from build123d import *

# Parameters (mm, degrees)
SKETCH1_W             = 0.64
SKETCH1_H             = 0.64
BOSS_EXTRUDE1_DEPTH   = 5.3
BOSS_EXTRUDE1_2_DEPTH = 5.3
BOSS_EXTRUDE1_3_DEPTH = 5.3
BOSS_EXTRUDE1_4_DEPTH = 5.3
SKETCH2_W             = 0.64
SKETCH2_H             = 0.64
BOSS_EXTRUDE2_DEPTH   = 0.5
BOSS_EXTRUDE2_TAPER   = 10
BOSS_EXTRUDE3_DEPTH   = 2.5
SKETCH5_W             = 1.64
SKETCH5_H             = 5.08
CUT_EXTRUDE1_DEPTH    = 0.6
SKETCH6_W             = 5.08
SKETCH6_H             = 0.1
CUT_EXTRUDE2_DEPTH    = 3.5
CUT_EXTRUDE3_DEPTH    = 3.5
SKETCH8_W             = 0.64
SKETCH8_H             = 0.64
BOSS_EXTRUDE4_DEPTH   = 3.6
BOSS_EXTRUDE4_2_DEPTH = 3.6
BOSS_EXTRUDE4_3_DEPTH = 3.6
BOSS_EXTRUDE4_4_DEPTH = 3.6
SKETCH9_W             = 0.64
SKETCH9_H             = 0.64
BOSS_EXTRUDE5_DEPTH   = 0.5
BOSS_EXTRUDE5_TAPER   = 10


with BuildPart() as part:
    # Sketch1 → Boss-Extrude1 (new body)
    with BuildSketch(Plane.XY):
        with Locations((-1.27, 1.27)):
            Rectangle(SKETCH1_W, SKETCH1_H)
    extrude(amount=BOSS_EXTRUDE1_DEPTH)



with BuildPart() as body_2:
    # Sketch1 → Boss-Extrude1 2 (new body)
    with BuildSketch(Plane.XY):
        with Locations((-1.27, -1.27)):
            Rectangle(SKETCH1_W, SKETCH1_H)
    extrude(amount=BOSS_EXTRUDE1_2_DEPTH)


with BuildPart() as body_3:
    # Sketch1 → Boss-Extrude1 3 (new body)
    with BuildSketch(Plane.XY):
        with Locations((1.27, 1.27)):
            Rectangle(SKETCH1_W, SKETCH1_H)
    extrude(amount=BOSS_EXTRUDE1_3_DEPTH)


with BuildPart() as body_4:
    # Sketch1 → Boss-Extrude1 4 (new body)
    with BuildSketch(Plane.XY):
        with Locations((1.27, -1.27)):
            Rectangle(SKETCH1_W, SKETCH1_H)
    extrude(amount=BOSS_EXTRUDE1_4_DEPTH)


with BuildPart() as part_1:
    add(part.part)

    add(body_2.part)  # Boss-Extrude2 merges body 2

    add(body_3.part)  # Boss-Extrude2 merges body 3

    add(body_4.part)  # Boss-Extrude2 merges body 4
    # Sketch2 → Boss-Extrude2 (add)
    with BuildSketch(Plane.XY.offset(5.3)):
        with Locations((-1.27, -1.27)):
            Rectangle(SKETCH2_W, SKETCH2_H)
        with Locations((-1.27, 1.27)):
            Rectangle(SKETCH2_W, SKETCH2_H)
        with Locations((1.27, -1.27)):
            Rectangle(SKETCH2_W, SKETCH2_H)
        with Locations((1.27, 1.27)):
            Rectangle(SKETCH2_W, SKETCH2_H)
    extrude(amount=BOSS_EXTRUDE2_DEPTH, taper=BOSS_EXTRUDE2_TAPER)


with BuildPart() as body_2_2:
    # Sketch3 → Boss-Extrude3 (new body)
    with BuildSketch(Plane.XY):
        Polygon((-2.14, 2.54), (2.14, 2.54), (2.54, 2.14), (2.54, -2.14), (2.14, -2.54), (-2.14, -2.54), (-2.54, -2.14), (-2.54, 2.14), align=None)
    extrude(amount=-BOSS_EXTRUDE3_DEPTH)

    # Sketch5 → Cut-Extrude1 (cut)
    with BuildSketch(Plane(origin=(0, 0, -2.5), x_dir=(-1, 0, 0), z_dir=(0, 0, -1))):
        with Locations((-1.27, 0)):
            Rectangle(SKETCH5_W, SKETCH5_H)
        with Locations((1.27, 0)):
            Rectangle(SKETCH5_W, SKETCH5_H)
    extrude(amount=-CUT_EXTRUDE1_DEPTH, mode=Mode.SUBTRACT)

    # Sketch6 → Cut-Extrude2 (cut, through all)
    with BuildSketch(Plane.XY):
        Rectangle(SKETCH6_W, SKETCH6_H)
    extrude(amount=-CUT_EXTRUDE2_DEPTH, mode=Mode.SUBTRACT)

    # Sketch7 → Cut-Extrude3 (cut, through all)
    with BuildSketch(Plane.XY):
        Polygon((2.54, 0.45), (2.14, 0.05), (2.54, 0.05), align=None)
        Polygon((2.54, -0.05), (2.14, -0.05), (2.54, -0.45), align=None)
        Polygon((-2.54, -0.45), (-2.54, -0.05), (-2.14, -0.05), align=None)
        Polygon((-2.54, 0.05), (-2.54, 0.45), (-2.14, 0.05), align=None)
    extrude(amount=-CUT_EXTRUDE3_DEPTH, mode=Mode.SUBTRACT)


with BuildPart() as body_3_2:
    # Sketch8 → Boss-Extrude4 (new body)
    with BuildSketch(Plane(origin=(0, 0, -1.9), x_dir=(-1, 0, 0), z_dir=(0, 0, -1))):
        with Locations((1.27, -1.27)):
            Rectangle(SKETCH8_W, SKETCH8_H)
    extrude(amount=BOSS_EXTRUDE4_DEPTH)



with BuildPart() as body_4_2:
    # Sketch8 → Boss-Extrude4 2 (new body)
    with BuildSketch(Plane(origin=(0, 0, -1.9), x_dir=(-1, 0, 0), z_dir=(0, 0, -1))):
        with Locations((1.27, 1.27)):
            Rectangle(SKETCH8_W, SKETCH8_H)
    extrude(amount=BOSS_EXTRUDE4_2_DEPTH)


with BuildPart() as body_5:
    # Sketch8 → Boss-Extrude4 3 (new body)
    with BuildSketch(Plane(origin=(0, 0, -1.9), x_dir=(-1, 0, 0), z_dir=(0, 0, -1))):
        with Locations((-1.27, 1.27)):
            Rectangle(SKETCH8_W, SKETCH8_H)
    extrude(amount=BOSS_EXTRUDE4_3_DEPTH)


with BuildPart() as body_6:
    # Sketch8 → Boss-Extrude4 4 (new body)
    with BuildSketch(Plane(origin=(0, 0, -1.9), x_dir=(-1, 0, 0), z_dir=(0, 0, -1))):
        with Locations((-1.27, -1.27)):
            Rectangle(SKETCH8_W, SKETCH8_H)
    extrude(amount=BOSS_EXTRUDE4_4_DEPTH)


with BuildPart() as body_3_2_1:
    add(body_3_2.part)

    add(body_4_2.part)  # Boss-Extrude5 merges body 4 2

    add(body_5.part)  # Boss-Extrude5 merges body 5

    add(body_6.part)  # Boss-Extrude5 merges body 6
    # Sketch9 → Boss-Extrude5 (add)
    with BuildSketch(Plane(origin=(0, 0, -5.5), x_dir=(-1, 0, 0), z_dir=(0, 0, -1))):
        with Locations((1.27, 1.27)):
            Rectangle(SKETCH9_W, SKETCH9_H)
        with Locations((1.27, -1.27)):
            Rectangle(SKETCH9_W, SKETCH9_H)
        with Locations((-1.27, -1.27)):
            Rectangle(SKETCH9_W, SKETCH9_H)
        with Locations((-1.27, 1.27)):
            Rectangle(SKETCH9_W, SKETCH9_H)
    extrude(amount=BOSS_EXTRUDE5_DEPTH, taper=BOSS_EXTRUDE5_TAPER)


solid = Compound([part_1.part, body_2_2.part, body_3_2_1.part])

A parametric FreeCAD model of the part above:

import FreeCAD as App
import Part
import Sketcher
Q = App.Units.Quantity

doc = App.newDocument("Part")
body = doc.addObject("PartDesign::Body", "Body")

# Sketch on XY plane
sketch1 = body.newObject("Sketcher::SketchObject", "Sketch")
sketch1.AttachmentSupport = (doc.getObject("XY_Plane"), [""])
sketch1.MapMode = "FlatFace"
sketch1.addGeometry(Part.LineSegment(App.Vector(-1.6, 1.6, 0), App.Vector(-1.6, 0.9, 0)), False)
sketch1.addGeometry(Part.LineSegment(App.Vector(-1.6, 0.9, 0), App.Vector(-0.9, 0.9, 0)), False)
sketch1.addGeometry(Part.LineSegment(App.Vector(-0.9, 0.9, 0), App.Vector(-0.9, 1.6, 0)), False)
sketch1.addGeometry(Part.LineSegment(App.Vector(-0.9, 1.6, 0), App.Vector(-1.6, 1.6, 0)), False)
sketch1.addConstraint(Sketcher.Constraint("Coincident", 0, 2, 1, 1))
sketch1.addConstraint(Sketcher.Constraint("Coincident", 1, 2, 2, 1))
sketch1.addConstraint(Sketcher.Constraint("Coincident", 2, 2, 3, 1))
sketch1.addConstraint(Sketcher.Constraint("Coincident", 3, 2, 0, 1))
sketch1.addConstraint(Sketcher.Constraint("Vertical", 0))
sketch1.addConstraint(Sketcher.Constraint("Horizontal", 1))
sketch1.addConstraint(Sketcher.Constraint("Vertical", 2))
sketch1.addConstraint(Sketcher.Constraint("Horizontal", 3))
sketch1.addConstraint(Sketcher.Constraint("Equal", 3, 0))
sketch1.addConstraint(Sketcher.Constraint("DistanceX", 1, 1, 1, 2, Q("0.64 mm")))
sketch1.addConstraint(Sketcher.Constraint("DistanceX", 0, 2, -1, 1, Q("1.59 mm")))
sketch1.addConstraint(Sketcher.Constraint("DistanceY", -1, 1, 0, 2, Q("0.95 mm")))
pad1 = body.newObject("PartDesign::Pad", "Pad")
pad1.Profile = sketch1
pad1.Length = 5.3
body2 = doc.addObject("PartDesign::Body", "Body001")

# Sketch on XY plane
sketch2 = body2.newObject("Sketcher::SketchObject", "Sketch001")
sketch2.AttachmentSupport = (doc.getObject("XY_Plane001"), [""])
sketch2.MapMode = "FlatFace"
sketch2.addGeometry(Part.LineSegment(App.Vector(-1.6, -0.9, 0), App.Vector(-1.6, -1.6, 0)), False)
sketch2.addGeometry(Part.LineSegment(App.Vector(-1.6, -1.6, 0), App.Vector(-0.9, -1.6, 0)), False)
sketch2.addGeometry(Part.LineSegment(App.Vector(-0.9, -1.6, 0), App.Vector(-0.9, -0.9, 0)), False)
sketch2.addGeometry(Part.LineSegment(App.Vector(-0.9, -0.9, 0), App.Vector(-1.6, -0.9, 0)), False)
sketch2.addConstraint(Sketcher.Constraint("Coincident", 0, 2, 1, 1))
sketch2.addConstraint(Sketcher.Constraint("Coincident", 1, 2, 2, 1))
sketch2.addConstraint(Sketcher.Constraint("Coincident", 2, 2, 3, 1))
sketch2.addConstraint(Sketcher.Constraint("Coincident", 3, 2, 0, 1))
sketch2.addConstraint(Sketcher.Constraint("Vertical", 0))
sketch2.addConstraint(Sketcher.Constraint("Horizontal", 1))
sketch2.addConstraint(Sketcher.Constraint("Vertical", 2))
sketch2.addConstraint(Sketcher.Constraint("Horizontal", 3))
sketch2.addConstraint(Sketcher.Constraint("Equal", 3, 0))
sketch2.addConstraint(Sketcher.Constraint("DistanceX", 1, 1, 1, 2, Q("0.64 mm")))
sketch2.addConstraint(Sketcher.Constraint("DistanceX", 0, 2, -1, 1, Q("1.59 mm")))
sketch2.addConstraint(Sketcher.Constraint("DistanceY", 0, 2, -1, 1, Q("1.59 mm")))
pad2 = body2.newObject("PartDesign::Pad", "Pad001")
pad2.Profile = sketch2
pad2.Length = 5.3
body3 = doc.addObject("PartDesign::Body", "Body002")

# Sketch on XY plane
sketch3 = body3.newObject("Sketcher::SketchObject", "Sketch002")
sketch3.AttachmentSupport = (doc.getObject("XY_Plane002"), [""])
sketch3.MapMode = "FlatFace"
sketch3.addGeometry(Part.LineSegment(App.Vector(0.9, 1.6, 0), App.Vector(0.9, 0.9, 0)), False)
sketch3.addGeometry(Part.LineSegment(App.Vector(0.9, 0.9, 0), App.Vector(1.6, 0.9, 0)), False)
sketch3.addGeometry(Part.LineSegment(App.Vector(1.6, 0.9, 0), App.Vector(1.6, 1.6, 0)), False)
sketch3.addGeometry(Part.LineSegment(App.Vector(1.6, 1.6, 0), App.Vector(0.9, 1.6, 0)), False)
sketch3.addConstraint(Sketcher.Constraint("Coincident", 0, 2, 1, 1))
sketch3.addConstraint(Sketcher.Constraint("Coincident", 1, 2, 2, 1))
sketch3.addConstraint(Sketcher.Constraint("Coincident", 2, 2, 3, 1))
sketch3.addConstraint(Sketcher.Constraint("Coincident", 3, 2, 0, 1))
sketch3.addConstraint(Sketcher.Constraint("Vertical", 0))
sketch3.addConstraint(Sketcher.Constraint("Horizontal", 1))
sketch3.addConstraint(Sketcher.Constraint("Vertical", 2))
sketch3.addConstraint(Sketcher.Constraint("Horizontal", 3))
sketch3.addConstraint(Sketcher.Constraint("Equal", 3, 0))
sketch3.addConstraint(Sketcher.Constraint("DistanceX", 1, 1, 1, 2, Q("0.64 mm")))
sketch3.addConstraint(Sketcher.Constraint("DistanceX", -1, 1, 0, 2, Q("0.95 mm")))
sketch3.addConstraint(Sketcher.Constraint("DistanceY", -1, 1, 0, 2, Q("0.95 mm")))
pad3 = body3.newObject("PartDesign::Pad", "Pad002")
pad3.Profile = sketch3
pad3.Length = 5.3
body4 = doc.addObject("PartDesign::Body", "Body003")

# Sketch on XY plane
sketch4 = body4.newObject("Sketcher::SketchObject", "Sketch003")
sketch4.AttachmentSupport = (doc.getObject("XY_Plane003"), [""])
sketch4.MapMode = "FlatFace"
sketch4.addGeometry(Part.LineSegment(App.Vector(0.9, -0.9, 0), App.Vector(0.9, -1.6, 0)), False)
sketch4.addGeometry(Part.LineSegment(App.Vector(0.9, -1.6, 0), App.Vector(1.6, -1.6, 0)), False)
sketch4.addGeometry(Part.LineSegment(App.Vector(1.6, -1.6, 0), App.Vector(1.6, -0.9, 0)), False)
sketch4.addGeometry(Part.LineSegment(App.Vector(1.6, -0.9, 0), App.Vector(0.9, -0.9, 0)), False)
sketch4.addConstraint(Sketcher.Constraint("Coincident", 0, 2, 1, 1))
sketch4.addConstraint(Sketcher.Constraint("Coincident", 1, 2, 2, 1))
sketch4.addConstraint(Sketcher.Constraint("Coincident", 2, 2, 3, 1))
sketch4.addConstraint(Sketcher.Constraint("Coincident", 3, 2, 0, 1))
sketch4.addConstraint(Sketcher.Constraint("Vertical", 0))
sketch4.addConstraint(Sketcher.Constraint("Horizontal", 1))
sketch4.addConstraint(Sketcher.Constraint("Vertical", 2))
sketch4.addConstraint(Sketcher.Constraint("Horizontal", 3))
sketch4.addConstraint(Sketcher.Constraint("Equal", 3, 0))
sketch4.addConstraint(Sketcher.Constraint("DistanceX", 1, 1, 1, 2, Q("0.64 mm")))
sketch4.addConstraint(Sketcher.Constraint("DistanceX", -1, 1, 0, 2, Q("0.95 mm")))
sketch4.addConstraint(Sketcher.Constraint("DistanceY", 0, 2, -1, 1, Q("1.59 mm")))
pad4 = body4.newObject("PartDesign::Pad", "Pad003")
pad4.Profile = sketch4
pad4.Length = 5.3
body.AllowCompound = True
doc.recompute()

boolean = body.newObject("PartDesign::Boolean", "Boolean")
boolean.Type = "Fuse"
boolean.addObjects([body2])
doc.recompute()

boolean2 = body.newObject("PartDesign::Boolean", "Boolean001")
boolean2.Type = "Fuse"
boolean2.addObjects([body3])
doc.recompute()

boolean3 = body.newObject("PartDesign::Boolean", "Boolean002")
boolean3.Type = "Fuse"
boolean3.addObjects([body4])

# Sketch on XY plane
sketch5 = body.newObject("Sketcher::SketchObject", "Sketch004")
sketch5.AttachmentSupport = (doc.getObject("XY_Plane"), [""])
sketch5.MapMode = "FlatFace"
sketch5.AttachmentOffset = App.Placement(App.Vector(0, 0, 5.3), App.Rotation())
sketch5.addGeometry(Part.LineSegment(App.Vector(-1.6, -0.9, 0), App.Vector(-1.6, -1.6, 0)), False)
sketch5.addGeometry(Part.LineSegment(App.Vector(-1.6, -1.6, 0), App.Vector(-0.9, -1.6, 0)), False)
sketch5.addGeometry(Part.LineSegment(App.Vector(-0.9, -1.6, 0), App.Vector(-0.9, -0.9, 0)), False)
sketch5.addGeometry(Part.LineSegment(App.Vector(-0.9, -0.9, 0), App.Vector(-1.6, -0.9, 0)), False)
sketch5.addGeometry(Part.LineSegment(App.Vector(-1.6, 1.6, 0), App.Vector(-1.6, 0.9, 0)), False)
sketch5.addGeometry(Part.LineSegment(App.Vector(-1.6, 0.9, 0), App.Vector(-0.9, 0.9, 0)), False)
sketch5.addGeometry(Part.LineSegment(App.Vector(-0.9, 0.9, 0), App.Vector(-0.9, 1.6, 0)), False)
sketch5.addGeometry(Part.LineSegment(App.Vector(-0.9, 1.6, 0), App.Vector(-1.6, 1.6, 0)), False)
sketch5.addGeometry(Part.LineSegment(App.Vector(0.9, -0.9, 0), App.Vector(0.9, -1.6, 0)), False)
sketch5.addGeometry(Part.LineSegment(App.Vector(0.9, -1.6, 0), App.Vector(1.6, -1.6, 0)), False)
sketch5.addGeometry(Part.LineSegment(App.Vector(1.6, -1.6, 0), App.Vector(1.6, -0.9, 0)), False)
sketch5.addGeometry(Part.LineSegment(App.Vector(1.6, -0.9, 0), App.Vector(0.9, -0.9, 0)), False)
sketch5.addGeometry(Part.LineSegment(App.Vector(0.9, 1.6, 0), App.Vector(0.9, 0.9, 0)), False)
sketch5.addGeometry(Part.LineSegment(App.Vector(0.9, 0.9, 0), App.Vector(1.6, 0.9, 0)), False)
sketch5.addGeometry(Part.LineSegment(App.Vector(1.6, 0.9, 0), App.Vector(1.6, 1.6, 0)), False)
sketch5.addGeometry(Part.LineSegment(App.Vector(1.6, 1.6, 0), App.Vector(0.9, 1.6, 0)), False)
sketch5.addConstraint(Sketcher.Constraint("Coincident", 0, 2, 1, 1))
sketch5.addConstraint(Sketcher.Constraint("Coincident", 1, 2, 2, 1))
sketch5.addConstraint(Sketcher.Constraint("Coincident", 2, 2, 3, 1))
sketch5.addConstraint(Sketcher.Constraint("Coincident", 3, 2, 0, 1))
sketch5.addConstraint(Sketcher.Constraint("Coincident", 4, 2, 5, 1))
sketch5.addConstraint(Sketcher.Constraint("Coincident", 5, 2, 6, 1))
sketch5.addConstraint(Sketcher.Constraint("Coincident", 6, 2, 7, 1))
sketch5.addConstraint(Sketcher.Constraint("Coincident", 7, 2, 4, 1))
sketch5.addConstraint(Sketcher.Constraint("Coincident", 8, 2, 9, 1))
sketch5.addConstraint(Sketcher.Constraint("Coincident", 9, 2, 10, 1))
sketch5.addConstraint(Sketcher.Constraint("Coincident", 10, 2, 11, 1))
sketch5.addConstraint(Sketcher.Constraint("Coincident", 11, 2, 8, 1))
sketch5.addConstraint(Sketcher.Constraint("Coincident", 12, 2, 13, 1))
sketch5.addConstraint(Sketcher.Constraint("Coincident", 13, 2, 14, 1))
sketch5.addConstraint(Sketcher.Constraint("Coincident", 14, 2, 15, 1))
sketch5.addConstraint(Sketcher.Constraint("Coincident", 15, 2, 12, 1))
sketch5.addConstraint(Sketcher.Constraint("Vertical", 0))
sketch5.addConstraint(Sketcher.Constraint("Horizontal", 1))
sketch5.addConstraint(Sketcher.Constraint("Vertical", 2))
sketch5.addConstraint(Sketcher.Constraint("Horizontal", 3))
sketch5.addConstraint(Sketcher.Constraint("Vertical", 4))
sketch5.addConstraint(Sketcher.Constraint("Horizontal", 5))
sketch5.addConstraint(Sketcher.Constraint("Vertical", 6))
sketch5.addConstraint(Sketcher.Constraint("Horizontal", 7))
sketch5.addConstraint(Sketcher.Constraint("Vertical", 8))
sketch5.addConstraint(Sketcher.Constraint("Horizontal", 9))
sketch5.addConstraint(Sketcher.Constraint("Vertical", 10))
sketch5.addConstraint(Sketcher.Constraint("Horizontal", 11))
sketch5.addConstraint(Sketcher.Constraint("Vertical", 12))
sketch5.addConstraint(Sketcher.Constraint("Horizontal", 13))
sketch5.addConstraint(Sketcher.Constraint("Vertical", 14))
sketch5.addConstraint(Sketcher.Constraint("Horizontal", 15))
sketch5.addConstraint(Sketcher.Constraint("Symmetric", 6, 2, 8, 2, -1, 1))
sketch5.addConstraint(Sketcher.Constraint("Symmetric", 4, 2, 10, 2, -1, 1))
sketch5.addConstraint(Sketcher.Constraint("Symmetric", 2, 2, 12, 2, -1, 1))
sketch5.addConstraint(Sketcher.Constraint("Symmetric", 0, 2, 14, 2, -1, 1))
sketch5.addConstraint(Sketcher.Constraint("Symmetric", 1, 2, 8, 2, -2))
sketch5.addConstraint(Sketcher.Constraint("Symmetric", 3, 2, 10, 2, -2))
sketch5.addConstraint(Sketcher.Constraint("Equal", 15, 0))
sketch5.addConstraint(Sketcher.Constraint("DistanceX", 1, 1, 1, 2, Q("0.64 mm")))
sketch5.addConstraint(Sketcher.Constraint("DistanceY", 3, 2, 4, 2, Q("1.9 mm")))
sketch5.addConstraint(Sketcher.Constraint("DistanceX", 1, 2, 8, 2, Q("1.9 mm")))
pad5 = body.newObject("PartDesign::Pad", "Pad004")
pad5.Profile = sketch5
pad5.Length = 0.5
pad5.TaperAngle = -10
body5 = doc.addObject("PartDesign::Body", "Body004")
body5.AllowCompound = True

# Sketch on XY plane
sketch6 = body5.newObject("Sketcher::SketchObject", "Sketch005")
sketch6.AttachmentSupport = (doc.getObject("XY_Plane004"), [""])
sketch6.MapMode = "FlatFace"
sketch6.addGeometry(Part.LineSegment(App.Vector(2.1, 2.5, 0), App.Vector(-2.1, 2.5, 0)), False)
sketch6.addGeometry(Part.LineSegment(App.Vector(-2.1, 2.5, 0), App.Vector(-2.5, 2.1, 0)), False)
sketch6.addGeometry(Part.LineSegment(App.Vector(-2.5, 2.1, 0), App.Vector(-2.5, -2.1, 0)), False)
sketch6.addGeometry(Part.LineSegment(App.Vector(-2.5, -2.1, 0), App.Vector(-2.1, -2.5, 0)), False)
sketch6.addGeometry(Part.LineSegment(App.Vector(-2.1, -2.5, 0), App.Vector(2.1, -2.5, 0)), False)
sketch6.addGeometry(Part.LineSegment(App.Vector(2.1, -2.5, 0), App.Vector(2.5, -2.1, 0)), False)
sketch6.addGeometry(Part.LineSegment(App.Vector(2.5, -2.1, 0), App.Vector(2.5, 2.1, 0)), False)
sketch6.addGeometry(Part.LineSegment(App.Vector(2.5, 2.1, 0), App.Vector(2.1, 2.5, 0)), False)
sketch6.addConstraint(Sketcher.Constraint("Coincident", 0, 2, 1, 1))
sketch6.addConstraint(Sketcher.Constraint("Coincident", 1, 2, 2, 1))
sketch6.addConstraint(Sketcher.Constraint("Coincident", 2, 2, 3, 1))
sketch6.addConstraint(Sketcher.Constraint("Coincident", 3, 2, 4, 1))
sketch6.addConstraint(Sketcher.Constraint("Coincident", 4, 2, 5, 1))
sketch6.addConstraint(Sketcher.Constraint("Coincident", 5, 2, 6, 1))
sketch6.addConstraint(Sketcher.Constraint("Coincident", 6, 2, 7, 1))
sketch6.addConstraint(Sketcher.Constraint("Coincident", 7, 2, 0, 1))
sketch6.addConstraint(Sketcher.Constraint("Horizontal", 0))
sketch6.addConstraint(Sketcher.Constraint("Vertical", 2))
sketch6.addConstraint(Sketcher.Constraint("Horizontal", 4))
sketch6.addConstraint(Sketcher.Constraint("Vertical", 6))
sketch6.addConstraint(Sketcher.Constraint("Symmetric", 0, 2, 4, 2, -1, 1))
sketch6.addConstraint(Sketcher.Constraint("Symmetric", 1, 2, 5, 2, -1, 1))
sketch6.addConstraint(Sketcher.Constraint("Perpendicular", 1, 3))
sketch6.addConstraint(Sketcher.Constraint("Perpendicular", 5, 7))
sketch6.addConstraint(Sketcher.Constraint("Horizontal", 2, 2, 5, 2))
sketch6.addConstraint(Sketcher.Constraint("Horizontal", 1, 2, 6, 2))
sketch6.addConstraint(Sketcher.Constraint("Vertical", 0, 2, 3, 2))
sketch6.addConstraint(Sketcher.Constraint("Equal", 4, 2))
sketch6.addConstraint(Sketcher.Constraint("DistanceX", 0, 2, 0, 1, Q("4.28 mm")))
sketch6.addConstraint(Sketcher.Constraint("DistanceX", 1, 2, 0, 2, Q("0.4 mm")))
pad6 = body5.newObject("PartDesign::Pad", "Pad005")
pad6.Profile = sketch6
pad6.Length = 2.5
pad6.Reversed = True

# Sketch on XY plane
sketch7 = body5.newObject("Sketcher::SketchObject", "Sketch006")
sketch7.AttachmentSupport = (doc.getObject("XY_Plane004"), [""])
sketch7.MapMode = "FlatFace"
sketch7.AttachmentOffset = App.Placement(App.Vector(0, 0, -2.5), App.Rotation())
sketch7.addGeometry(Part.LineSegment(App.Vector(2.1, 2.5, 0), App.Vector(2.1, -2.5, 0)), False)
sketch7.addGeometry(Part.LineSegment(App.Vector(2.1, -2.5, 0), App.Vector(0.5, -2.5, 0)), False)
sketch7.addGeometry(Part.LineSegment(App.Vector(0.5, -2.5, 0), App.Vector(0.5, 2.5, 0)), False)
sketch7.addGeometry(Part.LineSegment(App.Vector(0.5, 2.5, 0), App.Vector(2.1, 2.5, 0)), False)
sketch7.addGeometry(Part.LineSegment(App.Vector(-0.5, 2.5, 0), App.Vector(-0.5, -2.5, 0)), False)
sketch7.addGeometry(Part.LineSegment(App.Vector(-0.5, -2.5, 0), App.Vector(-2.1, -2.5, 0)), False)
sketch7.addGeometry(Part.LineSegment(App.Vector(-2.1, -2.5, 0), App.Vector(-2.1, 2.5, 0)), False)
sketch7.addGeometry(Part.LineSegment(App.Vector(-2.1, 2.5, 0), App.Vector(-0.5, 2.5, 0)), False)
sketch7.addConstraint(Sketcher.Constraint("Coincident", 0, 2, 1, 1))
sketch7.addConstraint(Sketcher.Constraint("Coincident", 1, 2, 2, 1))
sketch7.addConstraint(Sketcher.Constraint("Coincident", 2, 2, 3, 1))
sketch7.addConstraint(Sketcher.Constraint("Coincident", 3, 2, 0, 1))
sketch7.addConstraint(Sketcher.Constraint("Coincident", 4, 2, 5, 1))
sketch7.addConstraint(Sketcher.Constraint("Coincident", 5, 2, 6, 1))
sketch7.addConstraint(Sketcher.Constraint("Coincident", 6, 2, 7, 1))
sketch7.addConstraint(Sketcher.Constraint("Coincident", 7, 2, 4, 1))
sketch7.addConstraint(Sketcher.Constraint("Vertical", 0))
sketch7.addConstraint(Sketcher.Constraint("Horizontal", 1))
sketch7.addConstraint(Sketcher.Constraint("Vertical", 2))
sketch7.addConstraint(Sketcher.Constraint("Horizontal", 3))
sketch7.addConstraint(Sketcher.Constraint("Vertical", 4))
sketch7.addConstraint(Sketcher.Constraint("Horizontal", 5))
sketch7.addConstraint(Sketcher.Constraint("Vertical", 6))
sketch7.addConstraint(Sketcher.Constraint("Horizontal", 7))
sketch7.addConstraint(Sketcher.Constraint("Symmetric", 2, 2, 4, 2, -1, 1))
sketch7.addConstraint(Sketcher.Constraint("Symmetric", 0, 2, 6, 2, -1, 1))
sketch7.addConstraint(Sketcher.Constraint("Horizontal", 1, 2, 4, 2))
sketch7.addConstraint(Sketcher.Constraint("DistanceX", 1, 2, 1, 1, Q("1.64 mm")))
sketch7.addConstraint(Sketcher.Constraint("DistanceY", 0, 2, 0, 1, Q("5.08 mm")))
sketch7.addConstraint(Sketcher.Constraint("DistanceX", 4, 2, 1, 2, Q("0.9 mm")))
pocket1 = body5.newObject("PartDesign::Pocket", "Pocket")
pocket1.Profile = sketch7
pocket1.Length = 0.6
pocket1.Reversed = True

# Sketch on XY plane
sketch8 = body5.newObject("Sketcher::SketchObject", "Sketch007")
sketch8.AttachmentSupport = (doc.getObject("XY_Plane004"), [""])
sketch8.MapMode = "FlatFace"
sketch8.addGeometry(Part.LineSegment(App.Vector(-2.54, 0.05, 0), App.Vector(-2.54, -0.05, 0)), False)
sketch8.addGeometry(Part.LineSegment(App.Vector(-2.54, -0.05, 0), App.Vector(2.54, -0.05, 0)), False)
sketch8.addGeometry(Part.LineSegment(App.Vector(2.54, -0.05, 0), App.Vector(2.54, 0.05, 0)), False)
sketch8.addGeometry(Part.LineSegment(App.Vector(2.54, 0.05, 0), App.Vector(-2.54, 0.05, 0)), False)
sketch8.addConstraint(Sketcher.Constraint("Coincident", 0, 2, 1, 1))
sketch8.addConstraint(Sketcher.Constraint("Coincident", 1, 2, 2, 1))
sketch8.addConstraint(Sketcher.Constraint("Coincident", 2, 2, 3, 1))
sketch8.addConstraint(Sketcher.Constraint("Coincident", 3, 2, 0, 1))
sketch8.addConstraint(Sketcher.Constraint("Vertical", 0))
sketch8.addConstraint(Sketcher.Constraint("Horizontal", 1))
sketch8.addConstraint(Sketcher.Constraint("Vertical", 2))
sketch8.addConstraint(Sketcher.Constraint("Horizontal", 3))
sketch8.addConstraint(Sketcher.Constraint("Symmetric", 0, 2, 2, 2, -1, 1))
sketch8.addConstraint(Sketcher.Constraint("DistanceY", 0, 2, 0, 1, Q("0.1 mm")))
sketch8.addConstraint(Sketcher.Constraint("DistanceX", 1, 1, 1, 2, Q("5.08 mm")))
pocket2 = body5.newObject("PartDesign::Pocket", "Pocket001")
pocket2.Profile = sketch8
pocket2.Type = "ThroughAll"

# Sketch on XY plane
sketch9 = body5.newObject("Sketcher::SketchObject", "Sketch008")
sketch9.AttachmentSupport = (doc.getObject("XY_Plane004"), [""])
sketch9.MapMode = "FlatFace"
sketch9.addGeometry(Part.LineSegment(App.Vector(2.54, 0.45, 0), App.Vector(2.14, 0.05, 0)), False)
sketch9.addGeometry(Part.LineSegment(App.Vector(2.14, 0.05, 0), App.Vector(2.54, 0.05, 0)), False)
sketch9.addGeometry(Part.LineSegment(App.Vector(2.54, 0.05, 0), App.Vector(2.54, 0.45, 0)), False)
sketch9.addGeometry(Part.LineSegment(App.Vector(2.54, -0.05, 0), App.Vector(2.14, -0.05, 0)), False)
sketch9.addGeometry(Part.LineSegment(App.Vector(2.14, -0.05, 0), App.Vector(2.54, -0.45, 0)), False)
sketch9.addGeometry(Part.LineSegment(App.Vector(2.54, -0.45, 0), App.Vector(2.54, -0.05, 0)), False)
sketch9.addGeometry(Part.LineSegment(App.Vector(-2.54, -0.05, 0), App.Vector(-2.54, -0.45, 0)), False)
sketch9.addGeometry(Part.LineSegment(App.Vector(-2.54, -0.45, 0), App.Vector(-2.14, -0.05, 0)), False)
sketch9.addGeometry(Part.LineSegment(App.Vector(-2.14, -0.05, 0), App.Vector(-2.54, -0.05, 0)), False)
sketch9.addGeometry(Part.LineSegment(App.Vector(-2.54, 0.45, 0), App.Vector(-2.54, 0.05, 0)), False)
sketch9.addGeometry(Part.LineSegment(App.Vector(-2.54, 0.05, 0), App.Vector(-2.14, 0.05, 0)), False)
sketch9.addGeometry(Part.LineSegment(App.Vector(-2.14, 0.05, 0), App.Vector(-2.54, 0.45, 0)), False)
sketch9.addConstraint(Sketcher.Constraint("Coincident", 0, 2, 1, 1))
sketch9.addConstraint(Sketcher.Constraint("Coincident", 1, 2, 2, 1))
sketch9.addConstraint(Sketcher.Constraint("Coincident", 2, 2, 0, 1))
sketch9.addConstraint(Sketcher.Constraint("Coincident", 3, 2, 4, 1))
sketch9.addConstraint(Sketcher.Constraint("Coincident", 4, 2, 5, 1))
sketch9.addConstraint(Sketcher.Constraint("Coincident", 5, 2, 3, 1))
sketch9.addConstraint(Sketcher.Constraint("Coincident", 6, 2, 7, 1))
sketch9.addConstraint(Sketcher.Constraint("Coincident", 7, 2, 8, 1))
sketch9.addConstraint(Sketcher.Constraint("Coincident", 8, 2, 6, 1))
sketch9.addConstraint(Sketcher.Constraint("Coincident", 9, 2, 10, 1))
sketch9.addConstraint(Sketcher.Constraint("Coincident", 10, 2, 11, 1))
sketch9.addConstraint(Sketcher.Constraint("Coincident", 11, 2, 9, 1))
sketch9.addConstraint(Sketcher.Constraint("Horizontal", 1))
sketch9.addConstraint(Sketcher.Constraint("Vertical", 2))
sketch9.addConstraint(Sketcher.Constraint("Horizontal", 3))
sketch9.addConstraint(Sketcher.Constraint("Vertical", 5))
sketch9.addConstraint(Sketcher.Constraint("Vertical", 6))
sketch9.addConstraint(Sketcher.Constraint("Horizontal", 8))
sketch9.addConstraint(Sketcher.Constraint("Vertical", 9))
sketch9.addConstraint(Sketcher.Constraint("Horizontal", 10))
sketch9.addConstraint(Sketcher.Constraint("Symmetric", 2, 2, 6, 2, -1, 1))
sketch9.addConstraint(Sketcher.Constraint("Symmetric", 0, 2, 7, 2, -1, 1))
sketch9.addConstraint(Sketcher.Constraint("Symmetric", 5, 2, 9, 2, -1, 1))
sketch9.addConstraint(Sketcher.Constraint("Symmetric", 4, 2, 6, 2, -2))
sketch9.addConstraint(Sketcher.Constraint("Symmetric", 3, 2, 7, 2, -2))
sketch9.addConstraint(Sketcher.Constraint("Perpendicular", 0, 4))
sketch9.addConstraint(Sketcher.Constraint("Perpendicular", 7, 11))
sketch9.addConstraint(Sketcher.Constraint("Horizontal", 2, 2, 11, 2))
sketch9.addConstraint(Sketcher.Constraint("DistanceX", 1, 1, 1, 2, Q("0.4 mm")))
sketch9.addConstraint(Sketcher.Constraint("DistanceY", 3, 2, 0, 2, Q("0.1 mm")))
sketch9.addConstraint(Sketcher.Constraint("DistanceX", -1, 1, 0, 2, Q("2.14 mm")))
pocket3 = body5.newObject("PartDesign::Pocket", "Pocket002")
pocket3.Profile = sketch9
pocket3.Type = "ThroughAll"
body6 = doc.addObject("PartDesign::Body", "Body005")

# Sketch on XY plane
sketch10 = body6.newObject("Sketcher::SketchObject", "Sketch009")
sketch10.AttachmentSupport = (doc.getObject("XY_Plane005"), [""])
sketch10.MapMode = "FlatFace"
sketch10.AttachmentOffset = App.Placement(App.Vector(0, 0, -1.9), App.Rotation())
sketch10.addGeometry(Part.LineSegment(App.Vector(-0.9, -0.9, 0), App.Vector(-0.9, -1.6, 0)), False)
sketch10.addGeometry(Part.LineSegment(App.Vector(-0.9, -1.6, 0), App.Vector(-1.6, -1.6, 0)), False)
sketch10.addGeometry(Part.LineSegment(App.Vector(-1.6, -1.6, 0), App.Vector(-1.6, -0.9, 0)), False)
sketch10.addGeometry(Part.LineSegment(App.Vector(-1.6, -0.9, 0), App.Vector(-0.9, -0.9, 0)), False)
sketch10.addConstraint(Sketcher.Constraint("Coincident", 0, 2, 1, 1))
sketch10.addConstraint(Sketcher.Constraint("Coincident", 1, 2, 2, 1))
sketch10.addConstraint(Sketcher.Constraint("Coincident", 2, 2, 3, 1))
sketch10.addConstraint(Sketcher.Constraint("Coincident", 3, 2, 0, 1))
sketch10.addConstraint(Sketcher.Constraint("Vertical", 0))
sketch10.addConstraint(Sketcher.Constraint("Horizontal", 1))
sketch10.addConstraint(Sketcher.Constraint("Vertical", 2))
sketch10.addConstraint(Sketcher.Constraint("Horizontal", 3))
sketch10.addConstraint(Sketcher.Constraint("Equal", 3, 0))
sketch10.addConstraint(Sketcher.Constraint("DistanceX", 1, 2, 1, 1, Q("0.64 mm")))
sketch10.addConstraint(Sketcher.Constraint("DistanceX", 0, 2, -1, 1, Q("0.95 mm")))
sketch10.addConstraint(Sketcher.Constraint("DistanceY", 0, 2, -1, 1, Q("1.59 mm")))
pad7 = body6.newObject("PartDesign::Pad", "Pad006")
pad7.Profile = sketch10
pad7.Length = 3.6
pad7.Reversed = True
body7 = doc.addObject("PartDesign::Body", "Body006")

# Sketch on XY plane
sketch11 = body7.newObject("Sketcher::SketchObject", "Sketch010")
sketch11.AttachmentSupport = (doc.getObject("XY_Plane006"), [""])
sketch11.MapMode = "FlatFace"
sketch11.AttachmentOffset = App.Placement(App.Vector(0, 0, -1.9), App.Rotation())
sketch11.addGeometry(Part.LineSegment(App.Vector(-0.9, 1.6, 0), App.Vector(-0.9, 0.9, 0)), False)
sketch11.addGeometry(Part.LineSegment(App.Vector(-0.9, 0.9, 0), App.Vector(-1.6, 0.9, 0)), False)
sketch11.addGeometry(Part.LineSegment(App.Vector(-1.6, 0.9, 0), App.Vector(-1.6, 1.6, 0)), False)
sketch11.addGeometry(Part.LineSegment(App.Vector(-1.6, 1.6, 0), App.Vector(-0.9, 1.6, 0)), False)
sketch11.addConstraint(Sketcher.Constraint("Coincident", 0, 2, 1, 1))
sketch11.addConstraint(Sketcher.Constraint("Coincident", 1, 2, 2, 1))
sketch11.addConstraint(Sketcher.Constraint("Coincident", 2, 2, 3, 1))
sketch11.addConstraint(Sketcher.Constraint("Coincident", 3, 2, 0, 1))
sketch11.addConstraint(Sketcher.Constraint("Vertical", 0))
sketch11.addConstraint(Sketcher.Constraint("Horizontal", 1))
sketch11.addConstraint(Sketcher.Constraint("Vertical", 2))
sketch11.addConstraint(Sketcher.Constraint("Horizontal", 3))
sketch11.addConstraint(Sketcher.Constraint("Equal", 3, 0))
sketch11.addConstraint(Sketcher.Constraint("DistanceX", 1, 2, 1, 1, Q("0.64 mm")))
sketch11.addConstraint(Sketcher.Constraint("DistanceX", 0, 2, -1, 1, Q("0.95 mm")))
sketch11.addConstraint(Sketcher.Constraint("DistanceY", -1, 1, 0, 2, Q("0.95 mm")))
pad8 = body7.newObject("PartDesign::Pad", "Pad007")
pad8.Profile = sketch11
pad8.Length = 3.6
pad8.Reversed = True
body8 = doc.addObject("PartDesign::Body", "Body007")

# Sketch on XY plane
sketch12 = body8.newObject("Sketcher::SketchObject", "Sketch011")
sketch12.AttachmentSupport = (doc.getObject("XY_Plane007"), [""])
sketch12.MapMode = "FlatFace"
sketch12.AttachmentOffset = App.Placement(App.Vector(0, 0, -1.9), App.Rotation())
sketch12.addGeometry(Part.LineSegment(App.Vector(1.6, 1.6, 0), App.Vector(1.6, 0.9, 0)), False)
sketch12.addGeometry(Part.LineSegment(App.Vector(1.6, 0.9, 0), App.Vector(0.9, 0.9, 0)), False)
sketch12.addGeometry(Part.LineSegment(App.Vector(0.9, 0.9, 0), App.Vector(0.9, 1.6, 0)), False)
sketch12.addGeometry(Part.LineSegment(App.Vector(0.9, 1.6, 0), App.Vector(1.6, 1.6, 0)), False)
sketch12.addConstraint(Sketcher.Constraint("Coincident", 0, 2, 1, 1))
sketch12.addConstraint(Sketcher.Constraint("Coincident", 1, 2, 2, 1))
sketch12.addConstraint(Sketcher.Constraint("Coincident", 2, 2, 3, 1))
sketch12.addConstraint(Sketcher.Constraint("Coincident", 3, 2, 0, 1))
sketch12.addConstraint(Sketcher.Constraint("Vertical", 0))
sketch12.addConstraint(Sketcher.Constraint("Horizontal", 1))
sketch12.addConstraint(Sketcher.Constraint("Vertical", 2))
sketch12.addConstraint(Sketcher.Constraint("Horizontal", 3))
sketch12.addConstraint(Sketcher.Constraint("Equal", 3, 0))
sketch12.addConstraint(Sketcher.Constraint("DistanceX", 1, 2, 1, 1, Q("0.64 mm")))
sketch12.addConstraint(Sketcher.Constraint("DistanceX", -1, 1, 0, 2, Q("1.59 mm")))
sketch12.addConstraint(Sketcher.Constraint("DistanceY", -1, 1, 0, 2, Q("0.95 mm")))
pad9 = body8.newObject("PartDesign::Pad", "Pad008")
pad9.Profile = sketch12
pad9.Length = 3.6
pad9.Reversed = True
body9 = doc.addObject("PartDesign::Body", "Body008")

# Sketch on XY plane
sketch13 = body9.newObject("Sketcher::SketchObject", "Sketch012")
sketch13.AttachmentSupport = (doc.getObject("XY_Plane008"), [""])
sketch13.MapMode = "FlatFace"
sketch13.AttachmentOffset = App.Placement(App.Vector(0, 0, -1.9), App.Rotation())
sketch13.addGeometry(Part.LineSegment(App.Vector(1.6, -0.9, 0), App.Vector(1.6, -1.6, 0)), False)
sketch13.addGeometry(Part.LineSegment(App.Vector(1.6, -1.6, 0), App.Vector(0.9, -1.6, 0)), False)
sketch13.addGeometry(Part.LineSegment(App.Vector(0.9, -1.6, 0), App.Vector(0.9, -0.9, 0)), False)
sketch13.addGeometry(Part.LineSegment(App.Vector(0.9, -0.9, 0), App.Vector(1.6, -0.9, 0)), False)
sketch13.addConstraint(Sketcher.Constraint("Coincident", 0, 2, 1, 1))
sketch13.addConstraint(Sketcher.Constraint("Coincident", 1, 2, 2, 1))
sketch13.addConstraint(Sketcher.Constraint("Coincident", 2, 2, 3, 1))
sketch13.addConstraint(Sketcher.Constraint("Coincident", 3, 2, 0, 1))
sketch13.addConstraint(Sketcher.Constraint("Vertical", 0))
sketch13.addConstraint(Sketcher.Constraint("Horizontal", 1))
sketch13.addConstraint(Sketcher.Constraint("Vertical", 2))
sketch13.addConstraint(Sketcher.Constraint("Horizontal", 3))
sketch13.addConstraint(Sketcher.Constraint("Equal", 3, 0))
sketch13.addConstraint(Sketcher.Constraint("DistanceX", 1, 2, 1, 1, Q("0.64 mm")))
sketch13.addConstraint(Sketcher.Constraint("DistanceX", -1, 1, 0, 2, Q("1.59 mm")))
sketch13.addConstraint(Sketcher.Constraint("DistanceY", 0, 2, -1, 1, Q("1.59 mm")))
pad10 = body9.newObject("PartDesign::Pad", "Pad009")
pad10.Profile = sketch13
pad10.Length = 3.6
pad10.Reversed = True
body6.AllowCompound = True
doc.recompute()

boolean4 = body6.newObject("PartDesign::Boolean", "Boolean003")
boolean4.Type = "Fuse"
boolean4.addObjects([body7])
doc.recompute()

boolean5 = body6.newObject("PartDesign::Boolean", "Boolean004")
boolean5.Type = "Fuse"
boolean5.addObjects([body8])
doc.recompute()

boolean6 = body6.newObject("PartDesign::Boolean", "Boolean005")
boolean6.Type = "Fuse"
boolean6.addObjects([body9])

# Sketch on XY plane
sketch14 = body6.newObject("Sketcher::SketchObject", "Sketch013")
sketch14.AttachmentSupport = (doc.getObject("XY_Plane005"), [""])
sketch14.MapMode = "FlatFace"
sketch14.AttachmentOffset = App.Placement(App.Vector(0, 0, -5.5), App.Rotation())
sketch14.addGeometry(Part.LineSegment(App.Vector(-0.9, 1.6, 0), App.Vector(-0.9, 0.9, 0)), False)
sketch14.addGeometry(Part.LineSegment(App.Vector(-0.9, 0.9, 0), App.Vector(-1.6, 0.9, 0)), False)
sketch14.addGeometry(Part.LineSegment(App.Vector(-1.6, 0.9, 0), App.Vector(-1.6, 1.6, 0)), False)
sketch14.addGeometry(Part.LineSegment(App.Vector(-1.6, 1.6, 0), App.Vector(-0.9, 1.6, 0)), False)
sketch14.addGeometry(Part.LineSegment(App.Vector(-0.9, -0.9, 0), App.Vector(-0.9, -1.6, 0)), False)
sketch14.addGeometry(Part.LineSegment(App.Vector(-0.9, -1.6, 0), App.Vector(-1.6, -1.6, 0)), False)
sketch14.addGeometry(Part.LineSegment(App.Vector(-1.6, -1.6, 0), App.Vector(-1.6, -0.9, 0)), False)
sketch14.addGeometry(Part.LineSegment(App.Vector(-1.6, -0.9, 0), App.Vector(-0.9, -0.9, 0)), False)
sketch14.addGeometry(Part.LineSegment(App.Vector(1.6, -0.9, 0), App.Vector(1.6, -1.6, 0)), False)
sketch14.addGeometry(Part.LineSegment(App.Vector(1.6, -1.6, 0), App.Vector(0.9, -1.6, 0)), False)
sketch14.addGeometry(Part.LineSegment(App.Vector(0.9, -1.6, 0), App.Vector(0.9, -0.9, 0)), False)
sketch14.addGeometry(Part.LineSegment(App.Vector(0.9, -0.9, 0), App.Vector(1.6, -0.9, 0)), False)
sketch14.addGeometry(Part.LineSegment(App.Vector(1.6, 1.6, 0), App.Vector(1.6, 0.9, 0)), False)
sketch14.addGeometry(Part.LineSegment(App.Vector(1.6, 0.9, 0), App.Vector(0.9, 0.9, 0)), False)
sketch14.addGeometry(Part.LineSegment(App.Vector(0.9, 0.9, 0), App.Vector(0.9, 1.6, 0)), False)
sketch14.addGeometry(Part.LineSegment(App.Vector(0.9, 1.6, 0), App.Vector(1.6, 1.6, 0)), False)
sketch14.addConstraint(Sketcher.Constraint("Coincident", 0, 2, 1, 1))
sketch14.addConstraint(Sketcher.Constraint("Coincident", 1, 2, 2, 1))
sketch14.addConstraint(Sketcher.Constraint("Coincident", 2, 2, 3, 1))
sketch14.addConstraint(Sketcher.Constraint("Coincident", 3, 2, 0, 1))
sketch14.addConstraint(Sketcher.Constraint("Coincident", 4, 2, 5, 1))
sketch14.addConstraint(Sketcher.Constraint("Coincident", 5, 2, 6, 1))
sketch14.addConstraint(Sketcher.Constraint("Coincident", 6, 2, 7, 1))
sketch14.addConstraint(Sketcher.Constraint("Coincident", 7, 2, 4, 1))
sketch14.addConstraint(Sketcher.Constraint("Coincident", 8, 2, 9, 1))
sketch14.addConstraint(Sketcher.Constraint("Coincident", 9, 2, 10, 1))
sketch14.addConstraint(Sketcher.Constraint("Coincident", 10, 2, 11, 1))
sketch14.addConstraint(Sketcher.Constraint("Coincident", 11, 2, 8, 1))
sketch14.addConstraint(Sketcher.Constraint("Coincident", 12, 2, 13, 1))
sketch14.addConstraint(Sketcher.Constraint("Coincident", 13, 2, 14, 1))
sketch14.addConstraint(Sketcher.Constraint("Coincident", 14, 2, 15, 1))
sketch14.addConstraint(Sketcher.Constraint("Coincident", 15, 2, 12, 1))
sketch14.addConstraint(Sketcher.Constraint("Vertical", 0))
sketch14.addConstraint(Sketcher.Constraint("Horizontal", 1))
sketch14.addConstraint(Sketcher.Constraint("Vertical", 2))
sketch14.addConstraint(Sketcher.Constraint("Horizontal", 3))
sketch14.addConstraint(Sketcher.Constraint("Vertical", 4))
sketch14.addConstraint(Sketcher.Constraint("Horizontal", 5))
sketch14.addConstraint(Sketcher.Constraint("Vertical", 6))
sketch14.addConstraint(Sketcher.Constraint("Horizontal", 7))
sketch14.addConstraint(Sketcher.Constraint("Vertical", 8))
sketch14.addConstraint(Sketcher.Constraint("Horizontal", 9))
sketch14.addConstraint(Sketcher.Constraint("Vertical", 10))
sketch14.addConstraint(Sketcher.Constraint("Horizontal", 11))
sketch14.addConstraint(Sketcher.Constraint("Vertical", 12))
sketch14.addConstraint(Sketcher.Constraint("Horizontal", 13))
sketch14.addConstraint(Sketcher.Constraint("Vertical", 14))
sketch14.addConstraint(Sketcher.Constraint("Horizontal", 15))
sketch14.addConstraint(Sketcher.Constraint("Symmetric", 2, 2, 8, 2, -1, 1))
sketch14.addConstraint(Sketcher.Constraint("Symmetric", 0, 2, 10, 2, -1, 1))
sketch14.addConstraint(Sketcher.Constraint("Symmetric", 6, 2, 12, 2, -1, 1))
sketch14.addConstraint(Sketcher.Constraint("Symmetric", 4, 2, 14, 2, -1, 1))
sketch14.addConstraint(Sketcher.Constraint("Symmetric", 5, 2, 8, 2, -2))
sketch14.addConstraint(Sketcher.Constraint("Symmetric", 7, 2, 10, 2, -2))
sketch14.addConstraint(Sketcher.Constraint("Equal", 15, 0))
sketch14.addConstraint(Sketcher.Constraint("DistanceX", 1, 2, 1, 1, Q("0.64 mm")))
sketch14.addConstraint(Sketcher.Constraint("DistanceY", 6, 2, 1, 2, Q("1.9 mm")))
sketch14.addConstraint(Sketcher.Constraint("DistanceX", 4, 2, 9, 2, Q("1.9 mm")))
pad11 = body6.newObject("PartDesign::Pad", "Pad010")
pad11.Profile = sketch14
pad11.Length = 0.5
pad11.Reversed = True
pad11.TaperAngle = -10

doc.recompute()
